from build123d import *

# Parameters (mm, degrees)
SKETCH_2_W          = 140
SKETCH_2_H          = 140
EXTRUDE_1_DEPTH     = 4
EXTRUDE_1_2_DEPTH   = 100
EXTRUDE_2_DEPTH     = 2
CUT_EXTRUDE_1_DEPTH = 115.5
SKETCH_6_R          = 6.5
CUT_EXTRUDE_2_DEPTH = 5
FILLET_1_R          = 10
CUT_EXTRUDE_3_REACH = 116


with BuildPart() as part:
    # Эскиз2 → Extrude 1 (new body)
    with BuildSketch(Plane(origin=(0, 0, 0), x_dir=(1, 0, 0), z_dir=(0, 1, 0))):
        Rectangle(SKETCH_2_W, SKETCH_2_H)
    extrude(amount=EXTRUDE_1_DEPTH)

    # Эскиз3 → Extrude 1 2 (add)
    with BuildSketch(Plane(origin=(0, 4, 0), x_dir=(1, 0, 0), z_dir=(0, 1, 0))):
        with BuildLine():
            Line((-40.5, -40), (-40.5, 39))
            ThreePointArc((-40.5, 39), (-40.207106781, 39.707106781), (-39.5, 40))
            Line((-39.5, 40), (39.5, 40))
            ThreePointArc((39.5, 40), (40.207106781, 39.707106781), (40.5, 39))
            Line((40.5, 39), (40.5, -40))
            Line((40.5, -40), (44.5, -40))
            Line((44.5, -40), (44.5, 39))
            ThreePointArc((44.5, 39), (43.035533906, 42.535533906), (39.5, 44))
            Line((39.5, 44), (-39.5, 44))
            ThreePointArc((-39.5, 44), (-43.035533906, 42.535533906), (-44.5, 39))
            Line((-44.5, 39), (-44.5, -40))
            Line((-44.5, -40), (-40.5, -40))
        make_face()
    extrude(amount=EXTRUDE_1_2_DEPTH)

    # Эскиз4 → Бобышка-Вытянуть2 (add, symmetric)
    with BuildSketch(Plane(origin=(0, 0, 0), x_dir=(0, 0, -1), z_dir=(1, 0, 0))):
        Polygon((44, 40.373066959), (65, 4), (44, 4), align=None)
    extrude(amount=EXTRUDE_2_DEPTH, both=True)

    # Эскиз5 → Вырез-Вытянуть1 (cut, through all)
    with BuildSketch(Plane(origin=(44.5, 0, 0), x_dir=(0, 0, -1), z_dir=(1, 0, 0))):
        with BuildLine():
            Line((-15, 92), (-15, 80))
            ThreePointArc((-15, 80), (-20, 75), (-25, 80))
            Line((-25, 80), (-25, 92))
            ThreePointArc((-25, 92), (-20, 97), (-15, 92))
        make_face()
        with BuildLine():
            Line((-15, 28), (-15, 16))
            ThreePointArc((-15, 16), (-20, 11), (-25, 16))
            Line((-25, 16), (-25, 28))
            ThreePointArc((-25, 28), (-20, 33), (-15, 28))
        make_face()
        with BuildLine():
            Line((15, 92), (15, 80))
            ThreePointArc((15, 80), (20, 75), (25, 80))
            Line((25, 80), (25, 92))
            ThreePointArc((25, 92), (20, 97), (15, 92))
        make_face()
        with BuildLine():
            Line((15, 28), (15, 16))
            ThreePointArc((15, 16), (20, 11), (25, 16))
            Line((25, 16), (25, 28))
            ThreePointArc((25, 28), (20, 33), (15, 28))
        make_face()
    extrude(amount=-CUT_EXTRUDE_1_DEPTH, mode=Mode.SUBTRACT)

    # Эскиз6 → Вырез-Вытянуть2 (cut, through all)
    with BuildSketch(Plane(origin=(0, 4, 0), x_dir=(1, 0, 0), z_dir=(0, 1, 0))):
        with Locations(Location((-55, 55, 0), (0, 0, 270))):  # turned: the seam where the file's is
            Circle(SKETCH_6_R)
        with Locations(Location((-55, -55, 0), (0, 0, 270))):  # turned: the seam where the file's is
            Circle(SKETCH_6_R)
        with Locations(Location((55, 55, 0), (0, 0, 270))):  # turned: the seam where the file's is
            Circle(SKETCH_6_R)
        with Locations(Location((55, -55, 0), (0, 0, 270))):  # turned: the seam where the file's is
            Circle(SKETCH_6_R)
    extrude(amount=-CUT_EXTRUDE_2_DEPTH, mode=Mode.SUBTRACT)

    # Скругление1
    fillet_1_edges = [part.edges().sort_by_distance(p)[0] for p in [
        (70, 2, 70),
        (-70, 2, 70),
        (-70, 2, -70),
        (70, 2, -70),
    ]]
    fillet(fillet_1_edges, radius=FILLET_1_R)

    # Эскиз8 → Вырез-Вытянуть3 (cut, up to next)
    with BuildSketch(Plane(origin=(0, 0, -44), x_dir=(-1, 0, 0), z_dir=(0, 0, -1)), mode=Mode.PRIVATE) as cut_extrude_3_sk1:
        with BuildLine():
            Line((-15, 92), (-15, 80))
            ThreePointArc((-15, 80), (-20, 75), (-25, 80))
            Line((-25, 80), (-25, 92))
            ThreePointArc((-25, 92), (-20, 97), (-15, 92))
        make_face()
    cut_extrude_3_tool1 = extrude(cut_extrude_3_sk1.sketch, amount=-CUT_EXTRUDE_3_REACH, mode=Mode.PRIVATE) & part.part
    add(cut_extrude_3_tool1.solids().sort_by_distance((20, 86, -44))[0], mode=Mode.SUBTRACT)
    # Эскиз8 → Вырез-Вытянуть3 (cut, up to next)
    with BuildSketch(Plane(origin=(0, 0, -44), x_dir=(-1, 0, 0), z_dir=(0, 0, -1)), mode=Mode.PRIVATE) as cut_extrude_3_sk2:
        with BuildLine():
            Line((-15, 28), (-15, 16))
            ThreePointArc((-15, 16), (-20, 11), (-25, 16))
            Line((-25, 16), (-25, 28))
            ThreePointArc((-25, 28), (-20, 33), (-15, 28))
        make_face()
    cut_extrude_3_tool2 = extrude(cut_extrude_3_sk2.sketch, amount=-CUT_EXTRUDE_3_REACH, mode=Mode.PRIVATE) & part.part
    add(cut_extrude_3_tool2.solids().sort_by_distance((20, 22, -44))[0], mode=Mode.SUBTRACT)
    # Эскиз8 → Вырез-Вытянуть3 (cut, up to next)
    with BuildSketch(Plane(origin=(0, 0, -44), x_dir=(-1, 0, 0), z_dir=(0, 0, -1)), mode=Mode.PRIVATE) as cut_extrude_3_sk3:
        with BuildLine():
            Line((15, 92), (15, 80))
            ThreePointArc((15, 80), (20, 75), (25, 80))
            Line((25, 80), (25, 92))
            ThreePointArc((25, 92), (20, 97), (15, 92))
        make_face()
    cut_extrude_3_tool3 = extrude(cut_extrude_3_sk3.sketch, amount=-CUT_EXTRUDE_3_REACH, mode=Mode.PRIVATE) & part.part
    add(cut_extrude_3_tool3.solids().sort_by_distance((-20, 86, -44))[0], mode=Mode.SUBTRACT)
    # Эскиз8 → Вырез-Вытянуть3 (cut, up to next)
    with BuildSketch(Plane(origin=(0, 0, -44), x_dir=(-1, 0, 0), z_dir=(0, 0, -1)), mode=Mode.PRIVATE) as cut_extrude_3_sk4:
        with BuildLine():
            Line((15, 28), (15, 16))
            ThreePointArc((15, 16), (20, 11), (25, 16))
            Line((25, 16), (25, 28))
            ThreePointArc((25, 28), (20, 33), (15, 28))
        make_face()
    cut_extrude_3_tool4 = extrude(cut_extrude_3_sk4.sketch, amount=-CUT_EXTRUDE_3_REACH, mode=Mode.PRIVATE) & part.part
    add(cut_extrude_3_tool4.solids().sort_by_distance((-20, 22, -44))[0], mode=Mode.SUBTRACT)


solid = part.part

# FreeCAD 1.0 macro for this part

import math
import FreeCAD as App
import Part
import Sketcher

V = App.Vector
Q = App.Units.Quantity


def edges_at(feature, points):
    """Names of the edges that pass closest to the given points."""
    edges = feature.Shape.Edges
    near = lambda p: min(range(len(edges)), key=lambda i: edges[i].distToShape(Part.Vertex(*p))[0])
    return sorted({f"Edge{near(p) + 1}" for p in points})

doc = App.newDocument("Part")
body = doc.addObject("PartDesign::Body", "Body")

# Sketch on XZ plane
sketch1 = doc.addObject("Sketcher::SketchObject", "Sketch")
body.addObject(sketch1)
sketch1.AttachmentSupport = (doc.XZ_Plane, [""])
sketch1.MapMode = "FlatFace"
sketch1.addGeometry([
    Part.LineSegment(V(-70, -70, 0), V(-70, 70, 0)),
    Part.LineSegment(V(-70, 70, 0), V(70, 70, 0)),
    Part.LineSegment(V(70, 70, 0), V(70, -70, 0)),
    Part.LineSegment(V(70, -70, 0), V(-70, -70, 0)),
], False)
sketch1.addConstraint([
    Sketcher.Constraint("Coincident", 0, 2, 1, 1),
    Sketcher.Constraint("Coincident", 1, 2, 2, 1),
    Sketcher.Constraint("Coincident", 2, 2, 3, 1),
    Sketcher.Constraint("Coincident", 3, 2, 0, 1),
    Sketcher.Constraint("Vertical", 0),
    Sketcher.Constraint("Horizontal", 1),
    Sketcher.Constraint("Vertical", 2),
    Sketcher.Constraint("Horizontal", 3),
    Sketcher.Constraint("Symmetric", 0, 2, 2, 2, -1, 1),
    Sketcher.Constraint("Equal", 3, 0),
    Sketcher.Constraint("DistanceX", 1, 1, 1, 2, 140.0),
])
pad1 = doc.addObject("PartDesign::Pad", "Pad")
body.addObject(pad1)
pad1.Profile = sketch1
pad1.Length = 4
pad1.Reversed = True

# Sketch on XZ plane
sketch2 = doc.addObject("Sketcher::SketchObject", "Sketch001")
body.addObject(sketch2)
sketch2.AttachmentSupport = (doc.XZ_Plane, [""])
sketch2.MapMode = "FlatFace"
sketch2.AttachmentOffset = App.Placement(V(0, 0, -4), App.Rotation())
sketch2.addGeometry([
    Part.LineSegment(V(-40.5, 40, 0), V(-40.5, -39, 0)),  # 0
    Part.ArcOfCircle(Part.Circle(V(-39.5, -39, 0), V(0, 0, 1), 1), math.radians(-180), math.radians(-90)),  # 1
    Part.LineSegment(V(-39.5, -40, 0), V(39.5, -40, 0)),  # 2
    Part.ArcOfCircle(Part.Circle(V(39.5, -39, 0), V(0, 0, 1), 1), math.radians(-90), math.radians(0)),  # 3
    Part.LineSegment(V(40.5, -39, 0), V(40.5, 40, 0)),  # 4
    Part.LineSegment(V(40.5, 40, 0), V(44.5, 40, 0)),  # 5
    Part.LineSegment(V(44.5, 40, 0), V(44.5, -39, 0)),  # 6
    Part.ArcOfCircle(Part.Circle(V(39.5, -39, 0), V(0, 0, 1), 5), math.radians(-90), math.radians(0)),  # 7
    Part.LineSegment(V(39.5, -44, 0), V(-39.5, -44, 0)),  # 8
    Part.ArcOfCircle(Part.Circle(V(-39.5, -39, 0), V(0, 0, 1), 5), math.radians(180), math.radians(270)),  # 9
    Part.LineSegment(V(-44.5, -39, 0), V(-44.5, 40, 0)),  # 10
    Part.LineSegment(V(-44.5, 40, 0), V(-40.5, 40, 0)),  # 11
], False)
sketch2.addConstraint([
    Sketcher.Constraint("Tangent", 0, 2, 1, 1),
    Sketcher.Constraint("Tangent", 1, 2, 2, 1),
    Sketcher.Constraint("Tangent", 2, 2, 3, 1),
    Sketcher.Constraint("Tangent", 3, 2, 4, 1),
    Sketcher.Constraint("Coincident", 4, 2, 5, 1),
    Sketcher.Constraint("Coincident", 5, 2, 6, 1),
    Sketcher.Constraint("Tangent", 6, 2, 7, 2),
    Sketcher.Constraint("Tangent", 7, 1, 8, 1),
    Sketcher.Constraint("Tangent", 8, 2, 9, 2),
    Sketcher.Constraint("Tangent", 9, 1, 10, 1),
    Sketcher.Constraint("Coincident", 10, 2, 11, 1),
    Sketcher.Constraint("Coincident", 11, 2, 0, 1),
    Sketcher.Constraint("Vertical", 0),
    Sketcher.Constraint("Horizontal", 2),
    Sketcher.Constraint("Vertical", 4),
    Sketcher.Constraint("Horizontal", 5),
    Sketcher.Constraint("Vertical", 6),
    Sketcher.Constraint("Horizontal", 8),
    Sketcher.Constraint("Vertical", 10),
    Sketcher.Constraint("Horizontal", 11),
    Sketcher.Constraint("Coincident", 7, 3, 3, 3),
    Sketcher.Constraint("Coincident", 9, 3, 1, 3),
    Sketcher.Constraint("Equal", 1, 3),
    Sketcher.Constraint("Symmetric", 5, 2, 10, 2, -2),
    Sketcher.Constraint("Equal", 8, 0),
    Sketcher.Constraint("Radius", 1, 1.0),
    Sketcher.Constraint("Radius", 7, 5.0),
    Sketcher.Constraint("DistanceX", 2, 1, 2, 2, 79.0),
    Sketcher.Constraint("DistanceY", 1, 3, -1, 1, 39.0),
])
pad2 = doc.addObject("PartDesign::Pad", "Pad001")
body.addObject(pad2)
pad2.Profile = sketch2
pad2.Length = 100
pad2.Reversed = True

# Sketch on YZ plane
sketch3 = doc.addObject("Sketcher::SketchObject", "Sketch002")
body.addObject(sketch3)
sketch3.AttachmentSupport = (doc.YZ_Plane, [""])
sketch3.MapMode = "FlatFace"
sketch3.addGeometry([
    Part.LineSegment(V(4, -65, 0), V(40.373067, -44, 0)),
    Part.LineSegment(V(40.373067, -44, 0), V(4, -44, 0)),
    Part.LineSegment(V(4, -44, 0), V(4, -65, 0)),
], False)
sketch3.addConstraint([
    Sketcher.Constraint("Coincident", 0, 2, 1, 1),
    Sketcher.Constraint("Coincident", 1, 2, 2, 1),
    Sketcher.Constraint("Coincident", 2, 2, 0, 1),
    Sketcher.Constraint("Horizontal", 1),
    Sketcher.Constraint("Vertical", 2),
    Sketcher.Constraint("DistanceY", 2, 2, 2, 1, 21.0),
    Sketcher.Constraint("Angle", 0, Q("30 deg")),
    Sketcher.Constraint("DistanceY", 0, 2, -1, 1, 44.0),
    Sketcher.Constraint("DistanceX", -1, 1, 1, 2, 4.0),
])
pad3 = doc.addObject("PartDesign::Pad", "Pad002")
body.addObject(pad3)
pad3.Profile = sketch3
pad3.Length = 4
pad3.Midplane = True

# Sketch on YZ plane
sketch4 = doc.addObject("Sketcher::SketchObject", "Sketch003")
body.addObject(sketch4)
sketch4.AttachmentSupport = (doc.YZ_Plane, [""])
sketch4.MapMode = "FlatFace"
sketch4.AttachmentOffset = App.Placement(V(0, 0, 44.5), App.Rotation())
sketch4.addGeometry([
    Part.LineSegment(V(80, 15, 0), V(92, 15, 0)),  # 0
    Part.ArcOfCircle(Part.Circle(V(92, 20, 0), V(0, 0, 1), 5), math.radians(-90), math.radians(90)),  # 1
    Part.LineSegment(V(92, 25, 0), V(80, 25, 0)),  # 2
    Part.ArcOfCircle(Part.Circle(V(80, 20, 0), V(0, 0, 1), 5), math.radians(90), math.radians(270)),  # 3
    Part.LineSegment(V(16, 15, 0), V(28, 15, 0)),  # 4
    Part.ArcOfCircle(Part.Circle(V(28, 20, 0), V(0, 0, 1), 5), math.radians(-90), math.radians(90)),  # 5
    Part.LineSegment(V(28, 25, 0), V(16, 25, 0)),  # 6
    Part.ArcOfCircle(Part.Circle(V(16, 20, 0), V(0, 0, 1), 5), math.radians(90), math.radians(270)),  # 7
    Part.LineSegment(V(92, -15, 0), V(80, -15, 0)),  # 8
    Part.ArcOfCircle(Part.Circle(V(80, -20, 0), V(0, 0, 1), 5), math.radians(90), math.radians(270)),  # 9
    Part.LineSegment(V(80, -25, 0), V(92, -25, 0)),  # 10
    Part.ArcOfCircle(Part.Circle(V(92, -20, 0), V(0, 0, 1), 5), math.radians(-90), math.radians(90)),  # 11
    Part.LineSegment(V(28, -15, 0), V(16, -15, 0)),  # 12
    Part.ArcOfCircle(Part.Circle(V(16, -20, 0), V(0, 0, 1), 5), math.radians(90), math.radians(270)),  # 13
    Part.LineSegment(V(16, -25, 0), V(28, -25, 0)),  # 14
    Part.ArcOfCircle(Part.Circle(V(28, -20, 0), V(0, 0, 1), 5), math.radians(-90), math.radians(90)),  # 15
], False)
sketch4.addConstraint([
    Sketcher.Constraint("Tangent", 0, 2, 1, 1),
    Sketcher.Constraint("Tangent", 1, 2, 2, 1),
    Sketcher.Constraint("Tangent", 2, 2, 3, 1),
    Sketcher.Constraint("Tangent", 3, 2, 0, 1),
    Sketcher.Constraint("Tangent", 4, 2, 5, 1),
    Sketcher.Constraint("Tangent", 5, 2, 6, 1),
    Sketcher.Constraint("Tangent", 6, 2, 7, 1),
    Sketcher.Constraint("Tangent", 7, 2, 4, 1),
    Sketcher.Constraint("Tangent", 8, 2, 9, 1),
    Sketcher.Constraint("Tangent", 9, 2, 10, 1),
    Sketcher.Constraint("Tangent", 10, 2, 11, 1),
    Sketcher.Constraint("Tangent", 11, 2, 8, 1),
    Sketcher.Constraint("Tangent", 12, 2, 13, 1),
    Sketcher.Constraint("Tangent", 13, 2, 14, 1),
    Sketcher.Constraint("Tangent", 14, 2, 15, 1),
    Sketcher.Constraint("Tangent", 15, 2, 12, 1),
    Sketcher.Constraint("Horizontal", 0),
    Sketcher.Constraint("Horizontal", 2),
    Sketcher.Constraint("Horizontal", 4),
    Sketcher.Constraint("Horizontal", 6),
    Sketcher.Constraint("Horizontal", 8),
    Sketcher.Constraint("Horizontal", 10),
    Sketcher.Constraint("Horizontal", 12),
    Sketcher.Constraint("Horizontal", 14),
    Sketcher.Constraint("Equal", 3, 5),
    Sketcher.Constraint("Equal", 7, 9),
    Sketcher.Constraint("Equal", 11, 13),
    Sketcher.Constraint("Symmetric", 3, 3, 9, 3, -1),
    Sketcher.Constraint("Symmetric", 7, 3, 13, 3, -1),
    Sketcher.Constraint("Horizontal", 3, 3, 5, 3),
    Sketcher.Constraint("Vertical", 1, 3, 11, 3),
    Sketcher.Constraint("Vertical", 5, 3, 15, 3),
    Sketcher.Constraint("Equal", 2, 4),
    Sketcher.Constraint("Radius", 1, 5.0),
    Sketcher.Constraint("DistanceX", 0, 1, 0, 2, 12.0),
    Sketcher.Constraint("DistanceX", -1, 1, 1, 3, 92.0),
    Sketcher.Constraint("DistanceY", -1, 1, 1, 3, 20.0),
    Sketcher.Constraint("DistanceX", -1, 1, 5, 3, 28.0),
])
pocket1 = doc.addObject("PartDesign::Pocket", "Pocket")
body.addObject(pocket1)
pocket1.Profile = sketch4
pocket1.Type = "ThroughAll"

# Sketch on XZ plane
sketch5 = doc.addObject("Sketcher::SketchObject", "Sketch004")
body.addObject(sketch5)
sketch5.AttachmentSupport = (doc.XZ_Plane, [""])
sketch5.MapMode = "FlatFace"
sketch5.AttachmentOffset = App.Placement(V(0, 0, -4), App.Rotation())
sketch5.addGeometry([
    Part.Circle(V(-55, -55, 0), V(0, 0, 1), 6.5),
    Part.Circle(V(-55, 55, 0), V(0, 0, 1), 6.5),
    Part.Circle(V(55, -55, 0), V(0, 0, 1), 6.5),
    Part.Circle(V(55, 55, 0), V(0, 0, 1), 6.5),
], False)
sketch5.addConstraint([
    Sketcher.Constraint("Equal", 0, 1),
    Sketcher.Constraint("Equal", 1, 2),
    Sketcher.Constraint("Equal", 2, 3),
    Sketcher.Constraint("Symmetric", 1, 3, 2, 3, -1, 1),
    Sketcher.Constraint("Symmetric", 0, 3, 3, 3, -1, 1),
    Sketcher.Constraint("Symmetric", 0, 3, 2, 3, -2),
    Sketcher.Constraint("Diameter", 0, 13.0),
    Sketcher.Constraint("DistanceX", 0, 3, -1, 1, 55.0),
    Sketcher.Constraint("DistanceY", 0, 3, -1, 1, 55.0),
])
pocket2 = doc.addObject("PartDesign::Pocket", "Pocket001")
body.addObject(pocket2)
pocket2.Profile = sketch5
pocket2.Type = "ThroughAll"
pocket2.Reversed = True
doc.recompute()

fillet = doc.addObject("PartDesign::Fillet", "Fillet")
body.addObject(fillet)
fillet.Base = (pocket2, edges_at(pocket2, [
    (70, 2, 70),
    (-70, 2, 70),
    (-70, 2, -70),
    (70, 2, -70),
]))
fillet.Radius = 10

# Sketch on XY plane
sketch6 = doc.addObject("Sketcher::SketchObject", "Sketch005")
body.addObject(sketch6)
sketch6.AttachmentSupport = (doc.XY_Plane, [""])
sketch6.MapMode = "FlatFace"
sketch6.AttachmentOffset = App.Placement(V(0, 0, -44), App.Rotation())
sketch6.addGeometry([
    Part.LineSegment(V(15, 80, 0), V(15, 92, 0)),
    Part.ArcOfCircle(Part.Circle(V(20, 92, 0), V(0, 0, 1), 5), math.radians(0), math.radians(180)),
    Part.LineSegment(V(25, 92, 0), V(25, 80, 0)),
    Part.ArcOfCircle(Part.Circle(V(20, 80, 0), V(0, 0, 1), 5), math.radians(180), math.radians(360)),
], False)
sketch6.addConstraint([
    Sketcher.Constraint("Tangent", 0, 2, 1, 2),
    Sketcher.Constraint("Tangent", 1, 1, 2, 1),
    Sketcher.Constraint("Tangent", 2, 2, 3, 2),
    Sketcher.Constraint("Tangent", 3, 1, 0, 1),
    Sketcher.Constraint("Vertical", 0),
    Sketcher.Constraint("Vertical", 2),
    Sketcher.Constraint("Radius", 1, 5.0),
    Sketcher.Constraint("DistanceY", 0, 1, 0, 2, 12.0),
    Sketcher.Constraint("DistanceX", -1, 1, 1, 3, 20.0),
    Sketcher.Constraint("DistanceY", -1, 1, 1, 3, 92.0),
])
pocket3 = doc.addObject("PartDesign::Pocket", "Pocket002")
body.addObject(pocket3)
pocket3.Profile = sketch6
pocket3.Type = "UpToFirst"
pocket3.Reversed = True

# Sketch on XY plane
sketch7 = doc.addObject("Sketcher::SketchObject", "Sketch006")
body.addObject(sketch7)
sketch7.AttachmentSupport = (doc.XY_Plane, [""])
sketch7.MapMode = "FlatFace"
sketch7.AttachmentOffset = App.Placement(V(0, 0, -44), App.Rotation())
sketch7.addGeometry([
    Part.LineSegment(V(15, 16, 0), V(15, 28, 0)),
    Part.ArcOfCircle(Part.Circle(V(20, 28, 0), V(0, 0, 1), 5), math.radians(0), math.radians(180)),
    Part.LineSegment(V(25, 28, 0), V(25, 16, 0)),
    Part.ArcOfCircle(Part.Circle(V(20, 16, 0), V(0, 0, 1), 5), math.radians(180), math.radians(360)),
], False)
sketch7.addConstraint([
    Sketcher.Constraint("Tangent", 0, 2, 1, 2),
    Sketcher.Constraint("Tangent", 1, 1, 2, 1),
    Sketcher.Constraint("Tangent", 2, 2, 3, 2),
    Sketcher.Constraint("Tangent", 3, 1, 0, 1),
    Sketcher.Constraint("Vertical", 0),
    Sketcher.Constraint("Vertical", 2),
    Sketcher.Constraint("Radius", 1, 5.0),
    Sketcher.Constraint("DistanceY", 0, 1, 0, 2, 12.0),
    Sketcher.Constraint("DistanceX", -1, 1, 1, 3, 20.0),
    Sketcher.Constraint("DistanceY", -1, 1, 1, 3, 28.0),
])
pocket4 = doc.addObject("PartDesign::Pocket", "Pocket003")
body.addObject(pocket4)
pocket4.Profile = sketch7
pocket4.Type = "UpToFirst"
pocket4.Reversed = True

# Sketch on XY plane
sketch8 = doc.addObject("Sketcher::SketchObject", "Sketch007")
body.addObject(sketch8)
sketch8.AttachmentSupport = (doc.XY_Plane, [""])
sketch8.MapMode = "FlatFace"
sketch8.AttachmentOffset = App.Placement(V(0, 0, -44), App.Rotation())
sketch8.addGeometry([
    Part.LineSegment(V(-15, 92, 0), V(-15, 80, 0)),
    Part.ArcOfCircle(Part.Circle(V(-20, 80, 0), V(0, 0, 1), 5), math.radians(180), math.radians(360)),
    Part.LineSegment(V(-25, 80, 0), V(-25, 92, 0)),
    Part.ArcOfCircle(Part.Circle(V(-20, 92, 0), V(0, 0, 1), 5), math.radians(0), math.radians(180)),
], False)
sketch8.addConstraint([
    Sketcher.Constraint("Tangent", 0, 2, 1, 2),
    Sketcher.Constraint("Tangent", 1, 1, 2, 1),
    Sketcher.Constraint("Tangent", 2, 2, 3, 2),
    Sketcher.Constraint("Tangent", 3, 1, 0, 1),
    Sketcher.Constraint("Vertical", 0),
    Sketcher.Constraint("Vertical", 2),
    Sketcher.Constraint("Radius", 1, 5.0),
    Sketcher.Constraint("DistanceY", 0, 2, 0, 1, 12.0),
    Sketcher.Constraint("DistanceX", 1, 3, -1, 1, 20.0),
    Sketcher.Constraint("DistanceY", -1, 1, 1, 3, 80.0),
])
pocket5 = doc.addObject("PartDesign::Pocket", "Pocket004")
body.addObject(pocket5)
pocket5.Profile = sketch8
pocket5.Type = "UpToFirst"
pocket5.Reversed = True

# Sketch on XY plane
sketch9 = doc.addObject("Sketcher::SketchObject", "Sketch008")
body.addObject(sketch9)
sketch9.AttachmentSupport = (doc.XY_Plane, [""])
sketch9.MapMode = "FlatFace"
sketch9.AttachmentOffset = App.Placement(V(0, 0, -44), App.Rotation())
sketch9.addGeometry([
    Part.LineSegment(V(-15, 28, 0), V(-15, 16, 0)),
    Part.ArcOfCircle(Part.Circle(V(-20, 16, 0), V(0, 0, 1), 5), math.radians(180), math.radians(360)),
    Part.LineSegment(V(-25, 16, 0), V(-25, 28, 0)),
    Part.ArcOfCircle(Part.Circle(V(-20, 28, 0), V(0, 0, 1), 5), math.radians(0), math.radians(180)),
], False)
sketch9.addConstraint([
    Sketcher.Constraint("Tangent", 0, 2, 1, 2),
    Sketcher.Constraint("Tangent", 1, 1, 2, 1),
    Sketcher.Constraint("Tangent", 2, 2, 3, 2),
    Sketcher.Constraint("Tangent", 3, 1, 0, 1),
    Sketcher.Constraint("Vertical", 0),
    Sketcher.Constraint("Vertical", 2),
    Sketcher.Constraint("Radius", 1, 5.0),
    Sketcher.Constraint("DistanceY", 0, 2, 0, 1, 12.0),
    Sketcher.Constraint("DistanceX", 1, 3, -1, 1, 20.0),
    Sketcher.Constraint("DistanceY", -1, 1, 1, 3, 16.0),
])
pocket6 = doc.addObject("PartDesign::Pocket", "Pocket005")
body.addObject(pocket6)
pocket6.Profile = sketch9
pocket6.Type = "UpToFirst"
pocket6.Reversed = True

doc.recompute()
